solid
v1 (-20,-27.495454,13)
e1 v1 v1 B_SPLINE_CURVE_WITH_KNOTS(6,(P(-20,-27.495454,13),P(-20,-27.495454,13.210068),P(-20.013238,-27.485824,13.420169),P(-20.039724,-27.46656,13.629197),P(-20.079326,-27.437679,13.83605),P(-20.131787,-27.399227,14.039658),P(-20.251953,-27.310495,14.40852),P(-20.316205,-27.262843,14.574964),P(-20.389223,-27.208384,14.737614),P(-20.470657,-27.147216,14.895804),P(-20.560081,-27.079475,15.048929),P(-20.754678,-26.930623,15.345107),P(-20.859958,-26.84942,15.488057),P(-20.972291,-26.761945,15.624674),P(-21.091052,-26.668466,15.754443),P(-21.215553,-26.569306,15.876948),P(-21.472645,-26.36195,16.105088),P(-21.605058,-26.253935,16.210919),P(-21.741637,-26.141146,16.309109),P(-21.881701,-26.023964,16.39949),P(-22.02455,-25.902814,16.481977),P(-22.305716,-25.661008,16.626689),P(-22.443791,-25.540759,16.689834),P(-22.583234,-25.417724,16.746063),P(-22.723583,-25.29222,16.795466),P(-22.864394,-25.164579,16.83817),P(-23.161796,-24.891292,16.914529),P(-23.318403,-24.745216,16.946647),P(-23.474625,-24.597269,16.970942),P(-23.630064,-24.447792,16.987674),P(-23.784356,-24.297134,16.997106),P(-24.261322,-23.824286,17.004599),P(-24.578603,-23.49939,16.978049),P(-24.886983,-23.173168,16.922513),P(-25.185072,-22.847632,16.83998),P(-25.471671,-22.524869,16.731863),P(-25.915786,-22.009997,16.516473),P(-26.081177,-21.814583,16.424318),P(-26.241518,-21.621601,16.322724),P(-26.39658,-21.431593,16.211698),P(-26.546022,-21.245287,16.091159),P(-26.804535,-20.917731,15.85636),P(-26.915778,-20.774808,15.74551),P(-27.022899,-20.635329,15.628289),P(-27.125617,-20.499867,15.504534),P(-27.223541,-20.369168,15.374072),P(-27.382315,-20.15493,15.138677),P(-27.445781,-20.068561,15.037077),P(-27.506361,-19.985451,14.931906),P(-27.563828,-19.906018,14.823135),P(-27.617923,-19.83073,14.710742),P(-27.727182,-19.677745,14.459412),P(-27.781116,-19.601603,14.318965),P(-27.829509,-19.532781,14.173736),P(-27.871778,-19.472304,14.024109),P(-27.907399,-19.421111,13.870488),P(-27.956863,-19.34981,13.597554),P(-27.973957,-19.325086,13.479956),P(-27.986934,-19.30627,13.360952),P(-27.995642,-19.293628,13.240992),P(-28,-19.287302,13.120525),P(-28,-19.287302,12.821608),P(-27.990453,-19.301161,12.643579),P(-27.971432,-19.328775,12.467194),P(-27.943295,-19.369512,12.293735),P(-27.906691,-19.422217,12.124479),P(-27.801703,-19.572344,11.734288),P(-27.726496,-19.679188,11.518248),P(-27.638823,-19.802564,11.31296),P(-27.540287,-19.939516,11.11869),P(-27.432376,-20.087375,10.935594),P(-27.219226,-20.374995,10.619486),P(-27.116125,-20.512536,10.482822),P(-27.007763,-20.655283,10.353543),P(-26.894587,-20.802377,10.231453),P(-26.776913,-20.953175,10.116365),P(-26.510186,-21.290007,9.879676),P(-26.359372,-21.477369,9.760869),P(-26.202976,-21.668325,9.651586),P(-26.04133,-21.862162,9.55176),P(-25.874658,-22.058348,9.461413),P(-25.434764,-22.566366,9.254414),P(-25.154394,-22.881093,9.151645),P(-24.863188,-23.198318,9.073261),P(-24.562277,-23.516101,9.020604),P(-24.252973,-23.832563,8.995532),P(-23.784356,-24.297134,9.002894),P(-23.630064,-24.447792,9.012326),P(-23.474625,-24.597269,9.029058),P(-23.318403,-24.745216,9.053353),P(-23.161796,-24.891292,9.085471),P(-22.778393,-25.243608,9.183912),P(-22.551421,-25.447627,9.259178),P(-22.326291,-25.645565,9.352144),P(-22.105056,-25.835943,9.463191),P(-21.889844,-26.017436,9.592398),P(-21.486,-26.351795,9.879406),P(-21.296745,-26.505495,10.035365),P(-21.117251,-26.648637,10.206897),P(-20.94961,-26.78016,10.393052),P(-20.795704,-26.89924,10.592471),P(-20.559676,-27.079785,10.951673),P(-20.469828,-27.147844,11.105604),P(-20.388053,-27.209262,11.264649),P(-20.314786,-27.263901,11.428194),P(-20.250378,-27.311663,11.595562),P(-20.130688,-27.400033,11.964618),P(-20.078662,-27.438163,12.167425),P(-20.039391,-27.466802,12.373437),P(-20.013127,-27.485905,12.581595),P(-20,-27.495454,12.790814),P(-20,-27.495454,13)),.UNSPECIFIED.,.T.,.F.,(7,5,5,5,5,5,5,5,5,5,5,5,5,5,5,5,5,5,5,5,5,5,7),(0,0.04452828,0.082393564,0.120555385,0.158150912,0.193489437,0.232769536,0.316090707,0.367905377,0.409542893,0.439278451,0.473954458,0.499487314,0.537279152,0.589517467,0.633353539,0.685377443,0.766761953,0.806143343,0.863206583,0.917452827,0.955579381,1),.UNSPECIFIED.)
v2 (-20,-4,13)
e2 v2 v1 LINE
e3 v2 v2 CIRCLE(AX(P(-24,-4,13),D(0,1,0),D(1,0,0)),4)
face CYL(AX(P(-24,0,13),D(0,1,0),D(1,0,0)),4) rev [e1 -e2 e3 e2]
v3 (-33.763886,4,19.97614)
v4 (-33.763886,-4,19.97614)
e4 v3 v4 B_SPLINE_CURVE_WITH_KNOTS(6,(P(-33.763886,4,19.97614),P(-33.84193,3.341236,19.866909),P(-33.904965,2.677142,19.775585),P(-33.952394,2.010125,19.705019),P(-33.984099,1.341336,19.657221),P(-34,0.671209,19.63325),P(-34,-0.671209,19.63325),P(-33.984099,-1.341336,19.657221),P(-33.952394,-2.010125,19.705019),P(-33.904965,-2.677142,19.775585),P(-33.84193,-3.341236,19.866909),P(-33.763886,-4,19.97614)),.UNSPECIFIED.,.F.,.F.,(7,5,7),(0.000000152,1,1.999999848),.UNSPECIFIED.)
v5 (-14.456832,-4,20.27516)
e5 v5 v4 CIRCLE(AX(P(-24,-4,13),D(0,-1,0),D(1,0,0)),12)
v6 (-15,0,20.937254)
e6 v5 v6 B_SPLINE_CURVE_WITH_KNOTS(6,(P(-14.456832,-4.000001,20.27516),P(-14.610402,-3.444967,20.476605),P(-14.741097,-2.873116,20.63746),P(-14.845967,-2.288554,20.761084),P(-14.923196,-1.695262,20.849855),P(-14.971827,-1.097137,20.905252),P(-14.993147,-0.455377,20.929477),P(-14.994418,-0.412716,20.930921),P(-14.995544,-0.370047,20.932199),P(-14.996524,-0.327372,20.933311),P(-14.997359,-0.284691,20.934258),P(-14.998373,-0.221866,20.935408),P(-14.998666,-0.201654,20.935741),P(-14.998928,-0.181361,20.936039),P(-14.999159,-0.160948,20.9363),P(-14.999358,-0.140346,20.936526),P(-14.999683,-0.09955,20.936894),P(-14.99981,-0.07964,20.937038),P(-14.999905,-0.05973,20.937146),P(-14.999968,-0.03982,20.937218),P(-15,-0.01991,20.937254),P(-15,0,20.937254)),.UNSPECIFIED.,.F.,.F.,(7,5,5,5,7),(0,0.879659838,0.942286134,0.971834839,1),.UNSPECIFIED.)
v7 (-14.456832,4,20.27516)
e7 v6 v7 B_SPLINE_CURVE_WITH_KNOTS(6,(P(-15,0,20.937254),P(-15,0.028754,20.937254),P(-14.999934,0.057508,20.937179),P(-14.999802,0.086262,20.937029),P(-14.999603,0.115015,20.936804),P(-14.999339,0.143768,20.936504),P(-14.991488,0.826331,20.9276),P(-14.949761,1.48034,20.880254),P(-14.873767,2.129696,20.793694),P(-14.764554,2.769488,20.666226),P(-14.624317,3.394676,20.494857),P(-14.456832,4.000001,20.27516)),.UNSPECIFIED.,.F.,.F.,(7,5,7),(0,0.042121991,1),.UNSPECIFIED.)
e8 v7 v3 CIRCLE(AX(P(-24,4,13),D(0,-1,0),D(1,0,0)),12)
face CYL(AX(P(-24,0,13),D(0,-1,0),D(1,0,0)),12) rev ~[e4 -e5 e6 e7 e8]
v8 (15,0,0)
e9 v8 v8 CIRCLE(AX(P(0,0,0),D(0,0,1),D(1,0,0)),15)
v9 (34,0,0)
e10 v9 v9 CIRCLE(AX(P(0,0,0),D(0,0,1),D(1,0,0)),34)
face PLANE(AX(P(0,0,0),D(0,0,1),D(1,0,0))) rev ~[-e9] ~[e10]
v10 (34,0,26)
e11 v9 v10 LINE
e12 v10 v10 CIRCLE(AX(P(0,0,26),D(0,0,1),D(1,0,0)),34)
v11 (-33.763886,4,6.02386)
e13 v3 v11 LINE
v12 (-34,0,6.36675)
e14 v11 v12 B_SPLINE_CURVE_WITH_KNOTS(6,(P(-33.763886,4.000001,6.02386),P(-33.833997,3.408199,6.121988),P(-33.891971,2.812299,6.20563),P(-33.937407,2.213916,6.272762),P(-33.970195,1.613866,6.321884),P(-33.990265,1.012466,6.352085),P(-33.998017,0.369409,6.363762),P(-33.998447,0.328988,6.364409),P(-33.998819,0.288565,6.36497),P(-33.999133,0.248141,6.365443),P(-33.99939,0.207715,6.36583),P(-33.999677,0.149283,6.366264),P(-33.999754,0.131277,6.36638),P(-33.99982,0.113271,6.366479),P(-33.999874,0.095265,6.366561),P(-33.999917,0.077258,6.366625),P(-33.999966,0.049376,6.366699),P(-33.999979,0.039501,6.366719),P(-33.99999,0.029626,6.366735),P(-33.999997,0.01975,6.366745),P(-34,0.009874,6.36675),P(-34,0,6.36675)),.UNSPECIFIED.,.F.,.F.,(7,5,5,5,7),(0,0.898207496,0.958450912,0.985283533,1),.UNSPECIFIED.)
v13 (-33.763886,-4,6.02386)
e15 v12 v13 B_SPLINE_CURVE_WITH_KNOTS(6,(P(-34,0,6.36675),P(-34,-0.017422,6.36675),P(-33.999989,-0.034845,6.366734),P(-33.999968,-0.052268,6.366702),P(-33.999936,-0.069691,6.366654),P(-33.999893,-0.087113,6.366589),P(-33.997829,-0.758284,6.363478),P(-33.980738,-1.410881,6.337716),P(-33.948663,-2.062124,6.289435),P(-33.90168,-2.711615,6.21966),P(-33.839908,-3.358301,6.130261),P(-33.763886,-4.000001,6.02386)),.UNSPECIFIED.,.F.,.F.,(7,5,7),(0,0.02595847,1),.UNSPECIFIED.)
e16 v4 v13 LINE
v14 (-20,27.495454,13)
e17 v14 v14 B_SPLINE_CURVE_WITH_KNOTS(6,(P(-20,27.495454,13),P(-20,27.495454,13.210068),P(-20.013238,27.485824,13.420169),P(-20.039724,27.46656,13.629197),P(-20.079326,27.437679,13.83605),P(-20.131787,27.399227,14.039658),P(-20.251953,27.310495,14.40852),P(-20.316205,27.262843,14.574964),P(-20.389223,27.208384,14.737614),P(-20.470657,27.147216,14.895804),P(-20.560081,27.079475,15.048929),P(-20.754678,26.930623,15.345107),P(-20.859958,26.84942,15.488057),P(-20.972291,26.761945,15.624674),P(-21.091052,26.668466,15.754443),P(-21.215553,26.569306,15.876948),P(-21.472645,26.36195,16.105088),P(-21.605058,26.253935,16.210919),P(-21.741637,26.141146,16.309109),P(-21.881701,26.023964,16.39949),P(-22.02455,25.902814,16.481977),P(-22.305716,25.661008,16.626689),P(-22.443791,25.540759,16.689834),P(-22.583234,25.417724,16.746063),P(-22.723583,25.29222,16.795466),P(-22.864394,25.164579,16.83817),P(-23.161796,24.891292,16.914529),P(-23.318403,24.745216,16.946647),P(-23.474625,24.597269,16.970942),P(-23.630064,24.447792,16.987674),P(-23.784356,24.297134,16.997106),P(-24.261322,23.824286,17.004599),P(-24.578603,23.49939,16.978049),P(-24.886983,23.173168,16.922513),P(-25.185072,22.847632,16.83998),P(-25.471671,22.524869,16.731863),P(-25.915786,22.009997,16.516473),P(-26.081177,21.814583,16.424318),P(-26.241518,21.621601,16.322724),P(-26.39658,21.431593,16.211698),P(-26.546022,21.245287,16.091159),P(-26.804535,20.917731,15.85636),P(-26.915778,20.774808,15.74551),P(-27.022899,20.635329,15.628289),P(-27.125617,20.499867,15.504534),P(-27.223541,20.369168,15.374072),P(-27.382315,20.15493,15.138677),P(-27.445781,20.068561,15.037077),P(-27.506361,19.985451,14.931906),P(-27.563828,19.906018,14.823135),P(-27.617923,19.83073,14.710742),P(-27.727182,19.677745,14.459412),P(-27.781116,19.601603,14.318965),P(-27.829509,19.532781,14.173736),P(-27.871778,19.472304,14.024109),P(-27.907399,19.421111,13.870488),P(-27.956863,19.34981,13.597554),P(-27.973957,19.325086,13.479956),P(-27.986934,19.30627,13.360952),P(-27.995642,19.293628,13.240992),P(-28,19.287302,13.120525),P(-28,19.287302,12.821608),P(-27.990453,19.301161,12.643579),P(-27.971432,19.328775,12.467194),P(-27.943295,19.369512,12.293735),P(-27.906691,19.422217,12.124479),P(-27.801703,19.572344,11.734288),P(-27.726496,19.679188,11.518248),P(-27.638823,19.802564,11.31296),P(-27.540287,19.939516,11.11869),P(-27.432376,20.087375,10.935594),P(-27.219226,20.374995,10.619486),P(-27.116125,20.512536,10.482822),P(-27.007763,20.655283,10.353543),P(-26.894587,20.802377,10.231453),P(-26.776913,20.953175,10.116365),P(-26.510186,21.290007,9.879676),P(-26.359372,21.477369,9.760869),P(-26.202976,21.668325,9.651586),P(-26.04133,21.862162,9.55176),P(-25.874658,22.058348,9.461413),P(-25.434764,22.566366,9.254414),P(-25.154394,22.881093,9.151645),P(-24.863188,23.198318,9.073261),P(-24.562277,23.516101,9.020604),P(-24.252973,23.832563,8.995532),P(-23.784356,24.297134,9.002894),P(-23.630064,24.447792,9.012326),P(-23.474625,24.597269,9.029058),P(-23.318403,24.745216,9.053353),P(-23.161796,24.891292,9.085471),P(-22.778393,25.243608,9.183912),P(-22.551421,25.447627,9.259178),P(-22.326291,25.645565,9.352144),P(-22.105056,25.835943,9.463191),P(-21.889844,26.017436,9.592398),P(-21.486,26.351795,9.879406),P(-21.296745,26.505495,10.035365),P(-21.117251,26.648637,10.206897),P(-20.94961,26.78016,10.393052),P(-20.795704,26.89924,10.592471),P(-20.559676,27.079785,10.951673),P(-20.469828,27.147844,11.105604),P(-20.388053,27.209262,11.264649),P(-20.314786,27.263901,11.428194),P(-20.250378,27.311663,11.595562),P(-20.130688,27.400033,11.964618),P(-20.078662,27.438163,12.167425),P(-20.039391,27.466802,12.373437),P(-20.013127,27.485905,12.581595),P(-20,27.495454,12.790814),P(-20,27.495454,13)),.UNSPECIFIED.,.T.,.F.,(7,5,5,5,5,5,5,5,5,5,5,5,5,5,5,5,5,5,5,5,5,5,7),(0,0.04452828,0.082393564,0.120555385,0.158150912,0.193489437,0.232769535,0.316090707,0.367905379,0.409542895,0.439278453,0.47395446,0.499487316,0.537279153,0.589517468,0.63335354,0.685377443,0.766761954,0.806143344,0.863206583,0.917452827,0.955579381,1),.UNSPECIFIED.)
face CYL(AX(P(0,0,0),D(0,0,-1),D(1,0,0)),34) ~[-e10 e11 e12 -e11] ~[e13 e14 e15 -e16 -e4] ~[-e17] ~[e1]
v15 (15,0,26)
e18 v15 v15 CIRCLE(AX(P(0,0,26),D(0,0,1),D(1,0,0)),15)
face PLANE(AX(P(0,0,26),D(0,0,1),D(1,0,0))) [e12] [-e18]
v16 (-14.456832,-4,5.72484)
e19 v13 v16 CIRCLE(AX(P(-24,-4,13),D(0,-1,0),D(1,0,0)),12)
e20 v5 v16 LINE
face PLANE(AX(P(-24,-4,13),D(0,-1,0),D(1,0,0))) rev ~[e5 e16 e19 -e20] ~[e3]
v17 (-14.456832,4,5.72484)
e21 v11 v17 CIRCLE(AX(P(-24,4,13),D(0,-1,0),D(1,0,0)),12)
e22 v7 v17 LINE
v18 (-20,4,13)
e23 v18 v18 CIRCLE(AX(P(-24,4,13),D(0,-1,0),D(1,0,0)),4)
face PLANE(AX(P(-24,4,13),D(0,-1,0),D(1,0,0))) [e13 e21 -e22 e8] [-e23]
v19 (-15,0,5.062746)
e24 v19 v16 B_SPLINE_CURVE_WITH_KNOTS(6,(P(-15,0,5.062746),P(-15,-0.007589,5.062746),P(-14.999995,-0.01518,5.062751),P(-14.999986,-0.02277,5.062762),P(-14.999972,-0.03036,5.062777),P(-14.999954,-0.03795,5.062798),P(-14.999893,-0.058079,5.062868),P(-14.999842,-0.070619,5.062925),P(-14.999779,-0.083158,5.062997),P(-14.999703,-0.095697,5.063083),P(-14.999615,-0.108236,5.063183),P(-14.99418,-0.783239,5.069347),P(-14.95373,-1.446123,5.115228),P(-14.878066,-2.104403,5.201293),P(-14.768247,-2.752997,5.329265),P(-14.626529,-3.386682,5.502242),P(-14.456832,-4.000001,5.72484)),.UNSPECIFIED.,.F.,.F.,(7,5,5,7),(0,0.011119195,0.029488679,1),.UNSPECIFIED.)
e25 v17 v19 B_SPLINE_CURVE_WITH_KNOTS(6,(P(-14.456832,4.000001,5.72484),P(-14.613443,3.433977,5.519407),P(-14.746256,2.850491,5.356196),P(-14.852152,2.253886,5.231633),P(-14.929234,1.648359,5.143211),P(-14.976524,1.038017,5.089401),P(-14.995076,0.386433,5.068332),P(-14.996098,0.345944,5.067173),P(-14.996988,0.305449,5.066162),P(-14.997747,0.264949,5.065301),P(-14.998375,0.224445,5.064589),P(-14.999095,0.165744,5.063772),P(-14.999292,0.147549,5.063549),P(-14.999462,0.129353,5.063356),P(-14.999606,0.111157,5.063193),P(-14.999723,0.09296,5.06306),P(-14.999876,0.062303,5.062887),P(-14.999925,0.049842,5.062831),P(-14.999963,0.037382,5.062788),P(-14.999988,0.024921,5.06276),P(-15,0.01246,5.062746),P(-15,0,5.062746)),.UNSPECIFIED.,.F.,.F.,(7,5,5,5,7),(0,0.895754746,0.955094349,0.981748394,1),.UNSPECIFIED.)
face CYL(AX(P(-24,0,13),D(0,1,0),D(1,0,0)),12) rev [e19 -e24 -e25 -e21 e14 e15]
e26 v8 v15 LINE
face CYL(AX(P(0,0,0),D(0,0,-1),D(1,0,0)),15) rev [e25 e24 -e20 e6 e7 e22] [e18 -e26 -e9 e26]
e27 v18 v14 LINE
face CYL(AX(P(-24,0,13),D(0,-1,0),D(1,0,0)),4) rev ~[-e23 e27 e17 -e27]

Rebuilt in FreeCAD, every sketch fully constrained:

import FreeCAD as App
import Part
import Sketcher

V = App.Vector

doc = App.newDocument("Part")
body = doc.addObject("PartDesign::Body", "Body")

sketch1 = doc.addObject("Sketcher::SketchObject", "Sketch")
body.addObject(sketch1)
sketch1.AttachmentSupport = (doc.XY_Plane, [""])
sketch1.MapMode = "FlatFace"
sketch1.addGeometry(Part.Circle(V(0, 0, 0), V(0, 0, 1), 34), False)
sketch1.addGeometry(Part.Circle(V(0, 0, 0), V(0, 0, 1), 15), False)
sketch1.addConstraint(Sketcher.Constraint("Coincident", 0, 3, -1, 1))
sketch1.addConstraint(Sketcher.Constraint("Coincident", 1, 3, -1, 1))
sketch1.addConstraint(Sketcher.Constraint("Diameter", 0, 68.0))
sketch1.addConstraint(Sketcher.Constraint("Diameter", 1, 30.0))
pad1 = doc.addObject("PartDesign::Pad", "Pad")
body.addObject(pad1)
pad1.Profile = sketch1
pad1.Length = 26

sketch2 = doc.addObject("Sketcher::SketchObject", "Sketch001")
body.addObject(sketch2)
sketch2.AttachmentSupport = (doc.XZ_Plane, [""])
sketch2.MapMode = "FlatFace"
sketch2.addGeometry(Part.Circle(V(-24, 13, 0), V(0, 0, 1), 12), False)
sketch2.addConstraint(Sketcher.Constraint("Diameter", 0, 24.0))
sketch2.addConstraint(Sketcher.Constraint("DistanceX", 0, 3, -1, 1, 24.0))
sketch2.addConstraint(Sketcher.Constraint("DistanceY", -1, 1, 0, 3, 13.0))
pocket1 = doc.addObject("PartDesign::Pocket", "Pocket")
body.addObject(pocket1)
pocket1.Profile = sketch2
pocket1.Type = "TwoLengths"
pocket1.Length = 4
pocket1.Length2 = 4

sketch3 = doc.addObject("Sketcher::SketchObject", "Sketch002")
body.addObject(sketch3)
sketch3.AttachmentSupport = (doc.XZ_Plane, [""])
sketch3.MapMode = "FlatFace"
sketch3.addGeometry(Part.Circle(V(-24, 13, 0), V(0, 0, 1), 4), False)
sketch3.addConstraint(Sketcher.Constraint("Diameter", 0, 8.0))
sketch3.addConstraint(Sketcher.Constraint("DistanceX", 0, 3, -1, 1, 24.0))
sketch3.addConstraint(Sketcher.Constraint("DistanceY", -1, 1, 0, 3, 13.0))
pocket2 = doc.addObject("PartDesign::Pocket", "Pocket001")
body.addObject(pocket2)
pocket2.Profile = sketch3
pocket2.Type = "ThroughAll"
pocket2.Midplane = True

doc.recompute()
